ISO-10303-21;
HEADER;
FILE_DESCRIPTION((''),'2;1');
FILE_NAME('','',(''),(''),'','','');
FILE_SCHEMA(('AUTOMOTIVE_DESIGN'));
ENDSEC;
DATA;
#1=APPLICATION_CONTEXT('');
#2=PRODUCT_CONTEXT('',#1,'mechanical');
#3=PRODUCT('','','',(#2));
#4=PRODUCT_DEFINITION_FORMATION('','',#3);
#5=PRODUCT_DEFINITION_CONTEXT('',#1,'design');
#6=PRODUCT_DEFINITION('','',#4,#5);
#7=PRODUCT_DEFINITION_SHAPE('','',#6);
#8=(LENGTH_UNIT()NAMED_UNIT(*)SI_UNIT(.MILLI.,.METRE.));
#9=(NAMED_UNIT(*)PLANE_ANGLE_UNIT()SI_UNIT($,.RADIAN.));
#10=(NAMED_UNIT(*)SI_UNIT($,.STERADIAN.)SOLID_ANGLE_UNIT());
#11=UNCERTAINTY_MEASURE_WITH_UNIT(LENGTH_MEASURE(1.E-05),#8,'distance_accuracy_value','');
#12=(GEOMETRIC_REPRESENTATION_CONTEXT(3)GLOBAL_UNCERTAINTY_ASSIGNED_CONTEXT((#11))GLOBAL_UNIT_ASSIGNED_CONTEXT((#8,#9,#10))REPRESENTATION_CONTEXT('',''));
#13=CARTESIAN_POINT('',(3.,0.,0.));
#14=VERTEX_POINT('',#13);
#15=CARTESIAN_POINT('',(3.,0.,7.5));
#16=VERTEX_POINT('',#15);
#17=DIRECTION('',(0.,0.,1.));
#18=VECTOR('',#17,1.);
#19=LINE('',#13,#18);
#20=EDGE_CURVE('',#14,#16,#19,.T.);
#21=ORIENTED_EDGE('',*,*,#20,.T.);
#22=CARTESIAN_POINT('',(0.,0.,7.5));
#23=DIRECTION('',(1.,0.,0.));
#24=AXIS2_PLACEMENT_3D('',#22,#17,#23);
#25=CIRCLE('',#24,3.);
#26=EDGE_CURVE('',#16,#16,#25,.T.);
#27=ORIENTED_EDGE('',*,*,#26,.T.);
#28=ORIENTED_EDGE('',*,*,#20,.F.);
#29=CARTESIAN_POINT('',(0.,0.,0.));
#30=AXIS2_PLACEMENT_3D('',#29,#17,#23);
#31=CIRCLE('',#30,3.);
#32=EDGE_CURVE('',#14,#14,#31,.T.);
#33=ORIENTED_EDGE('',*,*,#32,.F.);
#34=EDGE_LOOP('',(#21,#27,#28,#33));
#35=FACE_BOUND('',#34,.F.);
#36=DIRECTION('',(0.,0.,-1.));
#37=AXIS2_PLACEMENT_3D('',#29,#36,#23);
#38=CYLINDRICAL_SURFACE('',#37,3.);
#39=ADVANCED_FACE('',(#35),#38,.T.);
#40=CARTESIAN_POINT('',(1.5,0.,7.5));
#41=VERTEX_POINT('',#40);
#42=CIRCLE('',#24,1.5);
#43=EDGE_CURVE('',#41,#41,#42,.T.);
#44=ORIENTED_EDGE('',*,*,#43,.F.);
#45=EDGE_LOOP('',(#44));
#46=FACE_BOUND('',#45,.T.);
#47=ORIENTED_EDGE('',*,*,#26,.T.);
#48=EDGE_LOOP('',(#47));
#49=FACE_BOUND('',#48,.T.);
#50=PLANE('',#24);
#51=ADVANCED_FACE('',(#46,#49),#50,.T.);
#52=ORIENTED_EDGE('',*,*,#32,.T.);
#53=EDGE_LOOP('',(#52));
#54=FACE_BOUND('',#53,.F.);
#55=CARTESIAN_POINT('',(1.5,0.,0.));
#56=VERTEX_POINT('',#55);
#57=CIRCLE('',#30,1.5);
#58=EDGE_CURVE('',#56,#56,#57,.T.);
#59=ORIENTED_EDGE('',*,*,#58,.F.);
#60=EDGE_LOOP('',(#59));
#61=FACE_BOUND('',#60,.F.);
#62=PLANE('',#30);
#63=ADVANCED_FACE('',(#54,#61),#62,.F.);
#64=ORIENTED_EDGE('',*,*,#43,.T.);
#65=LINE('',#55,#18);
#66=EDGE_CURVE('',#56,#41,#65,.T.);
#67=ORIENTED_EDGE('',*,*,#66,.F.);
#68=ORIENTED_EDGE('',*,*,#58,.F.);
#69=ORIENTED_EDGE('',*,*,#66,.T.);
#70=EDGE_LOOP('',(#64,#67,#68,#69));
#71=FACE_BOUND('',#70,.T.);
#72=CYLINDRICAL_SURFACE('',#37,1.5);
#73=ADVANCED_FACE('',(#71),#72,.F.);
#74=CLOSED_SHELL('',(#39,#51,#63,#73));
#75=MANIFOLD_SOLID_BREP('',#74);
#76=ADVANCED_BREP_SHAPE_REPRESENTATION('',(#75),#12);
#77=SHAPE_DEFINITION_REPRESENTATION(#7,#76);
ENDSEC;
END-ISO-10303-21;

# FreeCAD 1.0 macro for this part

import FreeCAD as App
import Part
import Sketcher
from FreeCAD import Vector
Q = App.Units.Quantity

doc = App.newDocument("Part")
body = doc.addObject("PartDesign::Body", "Body")

# Sketch on XY plane
sketch1 = body.newObject("Sketcher::SketchObject", "Sketch")
sketch1.AttachmentSupport = (doc.getObject("XY_Plane"), [""])
sketch1.MapMode = "FlatFace"
sketch1.addGeometry([
    Part.Circle(Vector(0, 0, 0), Vector(0, 0, 1), 3),
    Part.Circle(Vector(0, 0, 0), Vector(0, 0, 1), 1.5),
], False)
sketch1.addConstraint([
    Sketcher.Constraint("Coincident", 0, 3, -1, 1),
    Sketcher.Constraint("Coincident", 1, 3, -1, 1),
    Sketcher.Constraint("Diameter", 0, Q("6 mm")),
    Sketcher.Constraint("Diameter", 1, Q("3 mm")),
])
pad1 = body.newObject("PartDesign::Pad", "Pad")
pad1.Profile = sketch1
pad1.Length = 7.5

doc.recompute()
